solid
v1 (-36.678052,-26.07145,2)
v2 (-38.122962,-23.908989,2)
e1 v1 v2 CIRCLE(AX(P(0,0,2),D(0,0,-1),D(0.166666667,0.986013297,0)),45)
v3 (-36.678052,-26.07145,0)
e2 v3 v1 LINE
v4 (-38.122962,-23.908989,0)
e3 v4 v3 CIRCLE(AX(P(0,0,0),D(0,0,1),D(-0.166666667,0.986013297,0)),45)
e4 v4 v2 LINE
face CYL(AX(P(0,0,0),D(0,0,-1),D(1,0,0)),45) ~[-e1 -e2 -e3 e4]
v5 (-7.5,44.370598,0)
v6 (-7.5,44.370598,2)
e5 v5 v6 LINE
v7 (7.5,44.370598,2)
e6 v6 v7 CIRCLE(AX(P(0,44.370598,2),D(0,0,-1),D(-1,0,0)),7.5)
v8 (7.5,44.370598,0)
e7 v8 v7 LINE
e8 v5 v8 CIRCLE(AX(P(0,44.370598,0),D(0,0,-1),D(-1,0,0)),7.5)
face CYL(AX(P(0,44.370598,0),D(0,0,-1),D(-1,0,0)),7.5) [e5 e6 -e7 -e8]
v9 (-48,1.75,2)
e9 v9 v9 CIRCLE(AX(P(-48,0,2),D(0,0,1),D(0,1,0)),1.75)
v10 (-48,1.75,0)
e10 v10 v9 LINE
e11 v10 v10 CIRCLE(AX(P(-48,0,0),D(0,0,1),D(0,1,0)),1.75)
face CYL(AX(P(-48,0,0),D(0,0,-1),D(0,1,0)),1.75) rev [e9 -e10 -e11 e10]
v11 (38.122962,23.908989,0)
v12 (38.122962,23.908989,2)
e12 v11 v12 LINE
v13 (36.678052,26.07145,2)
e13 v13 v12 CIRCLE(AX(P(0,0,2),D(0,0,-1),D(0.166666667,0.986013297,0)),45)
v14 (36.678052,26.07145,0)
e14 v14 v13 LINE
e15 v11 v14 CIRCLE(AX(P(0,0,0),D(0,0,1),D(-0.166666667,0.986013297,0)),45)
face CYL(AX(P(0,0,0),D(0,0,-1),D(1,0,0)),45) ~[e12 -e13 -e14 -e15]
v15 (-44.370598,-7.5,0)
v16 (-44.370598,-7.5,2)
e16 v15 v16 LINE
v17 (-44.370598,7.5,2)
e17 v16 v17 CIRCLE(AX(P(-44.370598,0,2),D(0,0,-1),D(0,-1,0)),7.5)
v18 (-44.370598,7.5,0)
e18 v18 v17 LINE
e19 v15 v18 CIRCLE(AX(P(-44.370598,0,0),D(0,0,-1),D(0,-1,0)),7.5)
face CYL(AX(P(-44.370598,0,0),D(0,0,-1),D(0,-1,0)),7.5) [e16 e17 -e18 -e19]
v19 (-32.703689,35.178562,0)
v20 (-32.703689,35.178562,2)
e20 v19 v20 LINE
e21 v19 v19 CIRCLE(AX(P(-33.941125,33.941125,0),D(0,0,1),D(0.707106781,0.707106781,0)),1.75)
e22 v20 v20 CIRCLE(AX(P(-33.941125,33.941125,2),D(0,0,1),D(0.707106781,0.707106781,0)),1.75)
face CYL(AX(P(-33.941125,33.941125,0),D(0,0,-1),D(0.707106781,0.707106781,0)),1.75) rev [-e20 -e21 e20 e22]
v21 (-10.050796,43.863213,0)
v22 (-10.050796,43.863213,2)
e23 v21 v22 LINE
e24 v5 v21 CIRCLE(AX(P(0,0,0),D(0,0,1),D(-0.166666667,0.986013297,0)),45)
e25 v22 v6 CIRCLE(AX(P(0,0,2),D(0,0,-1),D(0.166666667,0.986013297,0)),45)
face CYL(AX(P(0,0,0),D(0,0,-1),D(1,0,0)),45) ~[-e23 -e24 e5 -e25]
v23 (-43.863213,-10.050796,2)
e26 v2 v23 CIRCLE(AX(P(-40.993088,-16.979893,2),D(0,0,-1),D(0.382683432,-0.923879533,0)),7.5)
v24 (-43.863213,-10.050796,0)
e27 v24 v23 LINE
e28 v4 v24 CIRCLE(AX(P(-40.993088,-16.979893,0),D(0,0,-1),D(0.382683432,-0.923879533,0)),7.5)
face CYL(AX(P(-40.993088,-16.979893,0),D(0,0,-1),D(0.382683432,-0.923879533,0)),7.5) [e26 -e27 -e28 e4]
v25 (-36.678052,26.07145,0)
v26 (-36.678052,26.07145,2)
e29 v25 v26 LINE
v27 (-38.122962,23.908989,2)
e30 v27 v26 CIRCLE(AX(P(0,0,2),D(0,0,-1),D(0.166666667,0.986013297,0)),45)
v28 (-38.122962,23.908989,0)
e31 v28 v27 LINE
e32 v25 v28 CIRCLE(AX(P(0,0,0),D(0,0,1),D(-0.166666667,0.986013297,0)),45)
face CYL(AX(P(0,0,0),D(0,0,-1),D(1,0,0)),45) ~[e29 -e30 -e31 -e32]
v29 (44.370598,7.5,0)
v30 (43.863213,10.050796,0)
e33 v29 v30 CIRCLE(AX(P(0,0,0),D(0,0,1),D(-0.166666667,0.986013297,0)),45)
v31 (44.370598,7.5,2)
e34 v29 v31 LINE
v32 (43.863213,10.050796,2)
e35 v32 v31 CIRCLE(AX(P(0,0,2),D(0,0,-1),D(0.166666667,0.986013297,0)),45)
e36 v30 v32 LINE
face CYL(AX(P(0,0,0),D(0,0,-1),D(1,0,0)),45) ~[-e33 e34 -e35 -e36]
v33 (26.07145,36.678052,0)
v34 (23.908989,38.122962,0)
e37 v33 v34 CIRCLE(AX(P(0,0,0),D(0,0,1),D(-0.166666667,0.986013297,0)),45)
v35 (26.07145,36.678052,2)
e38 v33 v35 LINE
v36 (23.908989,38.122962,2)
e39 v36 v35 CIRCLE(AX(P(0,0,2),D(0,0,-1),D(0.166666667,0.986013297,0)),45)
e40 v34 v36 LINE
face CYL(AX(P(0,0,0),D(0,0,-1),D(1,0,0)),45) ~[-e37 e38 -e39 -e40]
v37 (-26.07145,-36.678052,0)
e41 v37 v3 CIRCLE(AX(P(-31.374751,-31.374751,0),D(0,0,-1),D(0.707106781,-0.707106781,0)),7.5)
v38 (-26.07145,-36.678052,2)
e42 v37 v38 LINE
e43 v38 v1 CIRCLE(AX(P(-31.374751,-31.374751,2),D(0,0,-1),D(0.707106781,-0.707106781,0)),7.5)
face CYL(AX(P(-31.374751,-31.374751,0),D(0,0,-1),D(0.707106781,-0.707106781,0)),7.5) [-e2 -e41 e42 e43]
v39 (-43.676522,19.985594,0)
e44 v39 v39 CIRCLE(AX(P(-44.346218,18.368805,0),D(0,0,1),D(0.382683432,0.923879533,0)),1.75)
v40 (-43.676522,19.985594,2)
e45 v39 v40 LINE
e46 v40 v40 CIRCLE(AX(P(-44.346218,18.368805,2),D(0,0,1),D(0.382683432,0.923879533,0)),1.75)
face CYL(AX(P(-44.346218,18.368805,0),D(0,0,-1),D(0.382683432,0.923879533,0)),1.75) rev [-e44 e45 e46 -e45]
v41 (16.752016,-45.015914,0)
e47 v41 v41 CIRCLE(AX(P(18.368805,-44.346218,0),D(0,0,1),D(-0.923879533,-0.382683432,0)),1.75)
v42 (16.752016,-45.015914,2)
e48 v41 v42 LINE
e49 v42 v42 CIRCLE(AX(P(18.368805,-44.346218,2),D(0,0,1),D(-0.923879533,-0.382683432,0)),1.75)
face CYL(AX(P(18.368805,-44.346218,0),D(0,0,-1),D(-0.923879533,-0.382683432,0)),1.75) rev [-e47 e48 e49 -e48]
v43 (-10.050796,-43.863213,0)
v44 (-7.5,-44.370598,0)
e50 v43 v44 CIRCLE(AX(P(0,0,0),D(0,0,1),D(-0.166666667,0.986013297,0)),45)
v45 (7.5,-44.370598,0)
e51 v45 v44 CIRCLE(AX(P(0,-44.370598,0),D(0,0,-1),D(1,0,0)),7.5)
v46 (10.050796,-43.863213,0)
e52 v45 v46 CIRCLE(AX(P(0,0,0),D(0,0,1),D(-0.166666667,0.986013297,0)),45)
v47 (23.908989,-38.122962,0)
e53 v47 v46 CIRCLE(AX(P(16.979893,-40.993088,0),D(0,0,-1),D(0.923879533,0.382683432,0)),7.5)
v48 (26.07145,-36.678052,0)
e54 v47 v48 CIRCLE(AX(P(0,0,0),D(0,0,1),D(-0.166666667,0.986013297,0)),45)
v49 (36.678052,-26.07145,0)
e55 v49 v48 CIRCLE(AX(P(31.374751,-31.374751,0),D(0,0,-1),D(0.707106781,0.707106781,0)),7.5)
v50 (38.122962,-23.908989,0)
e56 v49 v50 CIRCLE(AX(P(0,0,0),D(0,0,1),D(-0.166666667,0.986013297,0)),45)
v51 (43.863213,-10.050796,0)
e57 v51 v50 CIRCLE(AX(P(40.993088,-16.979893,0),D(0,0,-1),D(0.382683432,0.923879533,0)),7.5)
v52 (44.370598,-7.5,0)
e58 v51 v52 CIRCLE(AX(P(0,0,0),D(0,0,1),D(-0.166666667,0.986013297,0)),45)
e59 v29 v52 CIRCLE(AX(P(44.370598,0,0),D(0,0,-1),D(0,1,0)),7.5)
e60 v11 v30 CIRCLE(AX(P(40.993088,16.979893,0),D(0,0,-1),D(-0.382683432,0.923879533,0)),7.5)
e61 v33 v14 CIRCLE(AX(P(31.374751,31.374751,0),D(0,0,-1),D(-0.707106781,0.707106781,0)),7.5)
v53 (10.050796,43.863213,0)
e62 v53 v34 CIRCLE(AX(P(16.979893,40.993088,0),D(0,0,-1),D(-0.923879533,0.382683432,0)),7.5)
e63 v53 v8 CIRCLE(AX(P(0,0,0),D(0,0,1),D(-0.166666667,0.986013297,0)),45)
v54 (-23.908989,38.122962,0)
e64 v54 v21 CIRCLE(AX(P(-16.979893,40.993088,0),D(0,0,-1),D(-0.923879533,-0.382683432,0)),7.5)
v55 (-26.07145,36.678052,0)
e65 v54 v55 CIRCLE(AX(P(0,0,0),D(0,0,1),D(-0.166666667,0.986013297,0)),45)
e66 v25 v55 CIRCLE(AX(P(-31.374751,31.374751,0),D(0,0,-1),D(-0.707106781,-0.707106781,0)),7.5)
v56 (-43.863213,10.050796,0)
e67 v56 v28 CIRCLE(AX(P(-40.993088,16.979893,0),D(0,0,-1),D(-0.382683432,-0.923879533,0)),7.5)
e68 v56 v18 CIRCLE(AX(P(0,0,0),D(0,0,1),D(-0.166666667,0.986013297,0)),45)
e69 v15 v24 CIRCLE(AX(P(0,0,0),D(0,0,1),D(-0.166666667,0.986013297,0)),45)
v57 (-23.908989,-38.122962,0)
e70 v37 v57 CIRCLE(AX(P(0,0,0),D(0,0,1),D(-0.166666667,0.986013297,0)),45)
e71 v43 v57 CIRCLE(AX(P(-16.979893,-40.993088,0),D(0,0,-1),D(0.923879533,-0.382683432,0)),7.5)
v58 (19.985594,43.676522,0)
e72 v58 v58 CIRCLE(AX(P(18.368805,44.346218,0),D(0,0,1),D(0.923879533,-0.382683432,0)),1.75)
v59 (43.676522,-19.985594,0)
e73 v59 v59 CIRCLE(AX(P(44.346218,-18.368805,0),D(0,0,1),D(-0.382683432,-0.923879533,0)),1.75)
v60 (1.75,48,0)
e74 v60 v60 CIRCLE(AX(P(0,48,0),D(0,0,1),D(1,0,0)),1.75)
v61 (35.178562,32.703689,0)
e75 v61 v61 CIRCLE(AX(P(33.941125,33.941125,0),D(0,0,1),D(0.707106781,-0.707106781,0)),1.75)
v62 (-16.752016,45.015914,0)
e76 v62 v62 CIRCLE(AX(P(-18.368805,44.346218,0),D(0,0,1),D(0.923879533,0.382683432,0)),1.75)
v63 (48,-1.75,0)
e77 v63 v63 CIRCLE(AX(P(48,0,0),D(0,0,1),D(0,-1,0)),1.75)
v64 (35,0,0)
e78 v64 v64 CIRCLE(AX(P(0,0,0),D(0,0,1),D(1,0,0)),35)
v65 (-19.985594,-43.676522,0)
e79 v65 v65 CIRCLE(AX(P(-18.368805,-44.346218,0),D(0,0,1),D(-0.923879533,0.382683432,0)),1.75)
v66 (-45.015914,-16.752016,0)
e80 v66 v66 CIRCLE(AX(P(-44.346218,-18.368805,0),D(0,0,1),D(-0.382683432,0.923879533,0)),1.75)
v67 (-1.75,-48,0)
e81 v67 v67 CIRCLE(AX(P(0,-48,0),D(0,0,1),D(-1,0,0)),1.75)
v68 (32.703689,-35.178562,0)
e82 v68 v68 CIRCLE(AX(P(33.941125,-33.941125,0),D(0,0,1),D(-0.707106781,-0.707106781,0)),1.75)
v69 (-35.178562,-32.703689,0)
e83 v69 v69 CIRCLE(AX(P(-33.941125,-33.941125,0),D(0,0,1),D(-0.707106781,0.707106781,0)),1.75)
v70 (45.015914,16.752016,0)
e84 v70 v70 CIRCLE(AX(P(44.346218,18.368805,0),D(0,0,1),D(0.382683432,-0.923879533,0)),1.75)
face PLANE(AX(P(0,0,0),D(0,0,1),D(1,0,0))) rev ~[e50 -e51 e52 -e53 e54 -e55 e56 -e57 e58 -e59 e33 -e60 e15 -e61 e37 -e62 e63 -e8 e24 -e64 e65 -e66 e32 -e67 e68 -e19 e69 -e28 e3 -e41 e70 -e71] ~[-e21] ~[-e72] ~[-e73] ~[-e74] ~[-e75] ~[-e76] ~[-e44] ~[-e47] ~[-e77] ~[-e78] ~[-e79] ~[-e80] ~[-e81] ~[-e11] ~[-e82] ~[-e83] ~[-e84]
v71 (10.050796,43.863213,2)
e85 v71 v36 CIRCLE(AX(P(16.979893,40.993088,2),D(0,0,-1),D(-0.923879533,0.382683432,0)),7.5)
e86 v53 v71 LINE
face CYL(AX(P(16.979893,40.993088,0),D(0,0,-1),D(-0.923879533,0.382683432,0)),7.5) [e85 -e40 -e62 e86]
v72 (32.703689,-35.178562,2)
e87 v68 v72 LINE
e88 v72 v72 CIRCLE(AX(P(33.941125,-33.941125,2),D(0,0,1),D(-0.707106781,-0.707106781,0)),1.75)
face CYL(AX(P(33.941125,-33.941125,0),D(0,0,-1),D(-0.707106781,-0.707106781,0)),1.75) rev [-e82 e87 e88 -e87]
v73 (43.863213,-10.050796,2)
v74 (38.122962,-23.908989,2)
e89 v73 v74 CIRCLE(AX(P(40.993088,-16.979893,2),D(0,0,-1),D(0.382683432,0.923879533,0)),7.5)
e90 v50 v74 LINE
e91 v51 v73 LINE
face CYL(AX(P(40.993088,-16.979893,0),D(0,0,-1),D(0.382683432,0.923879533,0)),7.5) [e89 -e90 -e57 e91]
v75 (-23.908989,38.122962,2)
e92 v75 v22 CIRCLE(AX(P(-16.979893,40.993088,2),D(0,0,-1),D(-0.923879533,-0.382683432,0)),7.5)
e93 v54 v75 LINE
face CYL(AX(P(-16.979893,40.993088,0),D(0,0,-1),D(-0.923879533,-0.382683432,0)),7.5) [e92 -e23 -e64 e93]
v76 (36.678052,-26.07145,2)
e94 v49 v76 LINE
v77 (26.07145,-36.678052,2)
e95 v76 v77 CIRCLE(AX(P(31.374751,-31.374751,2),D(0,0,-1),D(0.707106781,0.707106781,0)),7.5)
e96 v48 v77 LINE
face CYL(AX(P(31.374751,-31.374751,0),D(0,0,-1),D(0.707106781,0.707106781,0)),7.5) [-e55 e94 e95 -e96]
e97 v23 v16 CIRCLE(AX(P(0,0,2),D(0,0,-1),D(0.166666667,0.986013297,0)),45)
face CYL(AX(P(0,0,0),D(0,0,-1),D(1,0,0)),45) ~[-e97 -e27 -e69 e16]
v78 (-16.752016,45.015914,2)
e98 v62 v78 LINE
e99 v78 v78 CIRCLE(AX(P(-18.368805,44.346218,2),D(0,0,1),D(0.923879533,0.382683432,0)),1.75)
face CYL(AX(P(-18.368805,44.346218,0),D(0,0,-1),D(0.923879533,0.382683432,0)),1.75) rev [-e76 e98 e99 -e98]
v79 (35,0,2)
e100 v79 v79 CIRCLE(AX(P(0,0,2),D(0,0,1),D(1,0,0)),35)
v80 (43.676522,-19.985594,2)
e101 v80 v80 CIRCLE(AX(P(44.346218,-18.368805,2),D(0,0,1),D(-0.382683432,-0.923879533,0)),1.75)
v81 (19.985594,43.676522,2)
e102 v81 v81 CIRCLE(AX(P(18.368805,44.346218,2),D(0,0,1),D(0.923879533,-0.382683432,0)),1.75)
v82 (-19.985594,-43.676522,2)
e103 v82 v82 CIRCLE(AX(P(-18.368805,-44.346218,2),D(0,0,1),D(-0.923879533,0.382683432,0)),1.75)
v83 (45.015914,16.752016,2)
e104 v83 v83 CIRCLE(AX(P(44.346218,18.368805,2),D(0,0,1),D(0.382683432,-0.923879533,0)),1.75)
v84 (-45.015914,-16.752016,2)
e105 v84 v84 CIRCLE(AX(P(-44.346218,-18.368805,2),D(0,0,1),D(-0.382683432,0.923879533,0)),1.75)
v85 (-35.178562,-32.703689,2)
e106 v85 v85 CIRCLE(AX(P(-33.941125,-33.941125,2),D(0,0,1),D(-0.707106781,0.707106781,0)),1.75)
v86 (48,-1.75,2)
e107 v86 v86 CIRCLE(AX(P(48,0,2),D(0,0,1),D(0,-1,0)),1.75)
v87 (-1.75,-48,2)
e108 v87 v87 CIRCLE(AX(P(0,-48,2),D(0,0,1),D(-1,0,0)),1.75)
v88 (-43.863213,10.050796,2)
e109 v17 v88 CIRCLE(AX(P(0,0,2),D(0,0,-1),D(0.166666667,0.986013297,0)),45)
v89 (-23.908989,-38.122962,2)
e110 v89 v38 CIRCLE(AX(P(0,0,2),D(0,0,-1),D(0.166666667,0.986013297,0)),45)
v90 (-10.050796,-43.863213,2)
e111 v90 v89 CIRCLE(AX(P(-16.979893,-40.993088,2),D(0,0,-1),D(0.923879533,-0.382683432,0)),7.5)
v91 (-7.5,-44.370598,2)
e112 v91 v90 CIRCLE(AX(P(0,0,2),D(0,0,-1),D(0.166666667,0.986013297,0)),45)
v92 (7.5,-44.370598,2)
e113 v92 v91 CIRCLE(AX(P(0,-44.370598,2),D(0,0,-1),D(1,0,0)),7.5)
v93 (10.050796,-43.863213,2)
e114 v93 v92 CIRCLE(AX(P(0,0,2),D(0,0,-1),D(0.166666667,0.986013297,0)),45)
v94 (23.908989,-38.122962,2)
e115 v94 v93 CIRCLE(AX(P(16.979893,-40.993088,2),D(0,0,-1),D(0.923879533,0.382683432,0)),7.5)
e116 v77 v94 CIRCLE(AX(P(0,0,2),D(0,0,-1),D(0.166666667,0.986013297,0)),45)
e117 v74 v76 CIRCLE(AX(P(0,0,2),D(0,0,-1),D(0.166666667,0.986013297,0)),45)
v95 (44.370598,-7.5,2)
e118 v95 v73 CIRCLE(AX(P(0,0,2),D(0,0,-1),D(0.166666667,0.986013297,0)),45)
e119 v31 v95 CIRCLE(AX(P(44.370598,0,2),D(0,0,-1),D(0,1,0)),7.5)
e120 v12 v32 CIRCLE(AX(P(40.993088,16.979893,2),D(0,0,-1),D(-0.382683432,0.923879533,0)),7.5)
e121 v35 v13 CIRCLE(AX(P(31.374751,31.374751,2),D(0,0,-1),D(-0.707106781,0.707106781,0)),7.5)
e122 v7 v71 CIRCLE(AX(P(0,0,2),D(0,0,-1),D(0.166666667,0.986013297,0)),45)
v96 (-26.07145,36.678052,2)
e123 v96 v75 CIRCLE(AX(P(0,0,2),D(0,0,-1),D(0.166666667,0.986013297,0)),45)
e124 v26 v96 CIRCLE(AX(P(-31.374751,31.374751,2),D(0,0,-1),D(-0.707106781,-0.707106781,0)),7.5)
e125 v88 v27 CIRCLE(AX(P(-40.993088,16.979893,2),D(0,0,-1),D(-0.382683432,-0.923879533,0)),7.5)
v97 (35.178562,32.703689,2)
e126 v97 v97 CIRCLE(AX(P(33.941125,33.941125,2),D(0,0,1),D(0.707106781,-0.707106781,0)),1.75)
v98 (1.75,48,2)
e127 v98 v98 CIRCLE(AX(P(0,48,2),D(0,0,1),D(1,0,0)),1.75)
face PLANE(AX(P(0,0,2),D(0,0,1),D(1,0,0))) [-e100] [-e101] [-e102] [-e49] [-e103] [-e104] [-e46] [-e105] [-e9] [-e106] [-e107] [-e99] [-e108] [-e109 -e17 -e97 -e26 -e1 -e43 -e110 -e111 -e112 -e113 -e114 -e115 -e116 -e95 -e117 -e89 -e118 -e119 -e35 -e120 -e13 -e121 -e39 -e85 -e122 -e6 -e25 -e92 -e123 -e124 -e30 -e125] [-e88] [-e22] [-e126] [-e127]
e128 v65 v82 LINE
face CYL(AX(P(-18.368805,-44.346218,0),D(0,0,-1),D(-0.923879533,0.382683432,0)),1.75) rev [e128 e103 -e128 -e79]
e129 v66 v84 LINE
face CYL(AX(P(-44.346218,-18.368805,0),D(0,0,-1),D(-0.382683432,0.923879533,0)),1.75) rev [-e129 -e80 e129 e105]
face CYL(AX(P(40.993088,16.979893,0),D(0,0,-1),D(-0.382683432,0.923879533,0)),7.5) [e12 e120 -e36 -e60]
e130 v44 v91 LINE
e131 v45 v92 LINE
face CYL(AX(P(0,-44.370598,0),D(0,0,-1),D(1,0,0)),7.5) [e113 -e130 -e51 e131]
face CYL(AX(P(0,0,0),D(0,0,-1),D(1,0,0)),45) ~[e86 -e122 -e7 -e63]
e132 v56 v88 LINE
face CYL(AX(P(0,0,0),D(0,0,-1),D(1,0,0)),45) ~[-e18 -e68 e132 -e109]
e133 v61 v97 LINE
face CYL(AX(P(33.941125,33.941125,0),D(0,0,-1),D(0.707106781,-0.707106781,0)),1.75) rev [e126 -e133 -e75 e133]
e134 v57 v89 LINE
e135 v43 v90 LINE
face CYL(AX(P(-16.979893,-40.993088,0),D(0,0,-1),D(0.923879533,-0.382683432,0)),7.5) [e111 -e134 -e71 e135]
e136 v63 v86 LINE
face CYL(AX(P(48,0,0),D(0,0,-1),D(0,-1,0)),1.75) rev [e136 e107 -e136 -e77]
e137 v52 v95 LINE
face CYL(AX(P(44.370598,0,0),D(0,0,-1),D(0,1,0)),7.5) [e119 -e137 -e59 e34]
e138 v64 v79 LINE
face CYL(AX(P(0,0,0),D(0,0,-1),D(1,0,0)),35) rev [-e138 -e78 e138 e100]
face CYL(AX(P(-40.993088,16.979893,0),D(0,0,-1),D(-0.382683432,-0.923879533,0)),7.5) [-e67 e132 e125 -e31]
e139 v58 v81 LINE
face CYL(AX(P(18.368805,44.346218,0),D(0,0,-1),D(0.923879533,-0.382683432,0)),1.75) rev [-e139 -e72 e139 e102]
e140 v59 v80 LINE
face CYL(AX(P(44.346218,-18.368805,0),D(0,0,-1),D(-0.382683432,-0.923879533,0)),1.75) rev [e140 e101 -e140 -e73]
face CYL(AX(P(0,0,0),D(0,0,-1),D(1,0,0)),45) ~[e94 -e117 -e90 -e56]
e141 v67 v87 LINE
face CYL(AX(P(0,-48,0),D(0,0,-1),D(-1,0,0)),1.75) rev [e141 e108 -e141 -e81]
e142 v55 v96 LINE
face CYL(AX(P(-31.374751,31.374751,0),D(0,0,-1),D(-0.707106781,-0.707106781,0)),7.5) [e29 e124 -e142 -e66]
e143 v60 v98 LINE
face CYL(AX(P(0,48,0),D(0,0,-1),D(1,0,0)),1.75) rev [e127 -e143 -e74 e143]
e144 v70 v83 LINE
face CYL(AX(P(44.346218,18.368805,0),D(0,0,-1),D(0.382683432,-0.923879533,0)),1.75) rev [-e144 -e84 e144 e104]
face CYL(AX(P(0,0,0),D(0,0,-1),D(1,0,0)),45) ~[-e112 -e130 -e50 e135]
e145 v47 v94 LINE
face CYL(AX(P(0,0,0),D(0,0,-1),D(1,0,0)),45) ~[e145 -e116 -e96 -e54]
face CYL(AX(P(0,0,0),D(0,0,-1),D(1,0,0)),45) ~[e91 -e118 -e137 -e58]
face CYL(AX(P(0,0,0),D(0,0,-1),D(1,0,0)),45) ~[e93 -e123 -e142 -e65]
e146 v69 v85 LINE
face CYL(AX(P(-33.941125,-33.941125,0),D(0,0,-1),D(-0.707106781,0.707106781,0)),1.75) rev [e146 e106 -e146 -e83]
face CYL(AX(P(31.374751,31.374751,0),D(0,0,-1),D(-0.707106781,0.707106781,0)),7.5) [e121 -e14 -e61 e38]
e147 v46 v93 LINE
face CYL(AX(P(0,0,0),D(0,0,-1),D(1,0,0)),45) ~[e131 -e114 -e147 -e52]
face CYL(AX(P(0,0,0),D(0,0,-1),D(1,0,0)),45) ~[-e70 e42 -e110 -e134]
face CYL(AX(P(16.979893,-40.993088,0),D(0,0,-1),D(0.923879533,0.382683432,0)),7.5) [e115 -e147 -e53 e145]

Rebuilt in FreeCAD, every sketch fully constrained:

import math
import FreeCAD as App
import Part
import Sketcher

V = App.Vector
Q = App.Units.Quantity

doc = App.newDocument("Part")
body = doc.addObject("PartDesign::Body", "Body")

sketch1 = doc.addObject("Sketcher::SketchObject", "Sketch")
body.addObject(sketch1)
sketch1.AttachmentSupport = (doc.XY_Plane, [""])
sketch1.MapMode = "FlatFace"
sketch1.addGeometry([
    Part.Circle(V(0, 0, 0), V(0, 0, 1), 45),
    Part.Circle(V(0, 0, 0), V(0, 0, 1), 35),
], False)
sketch1.addConstraint([
    Sketcher.Constraint("Coincident", 0, 3, -1, 1),
    Sketcher.Constraint("Coincident", 1, 3, -1, 1),
    Sketcher.Constraint("Diameter", 0, Q("90 mm")),
    Sketcher.Constraint("Diameter", 1, Q("70 mm")),
])
pad1 = doc.addObject("PartDesign::Pad", "Pad")
body.addObject(pad1)
pad1.Profile = sketch1
pad1.Length = 2

sketch2 = doc.addObject("Sketcher::SketchObject", "Sketch001")
body.addObject(sketch2)
sketch2.AttachmentSupport = (doc.XY_Plane, [""])
sketch2.MapMode = "FlatFace"
sketch2.addGeometry([
    Part.ArcOfCircle(Part.Circle(V(0, 0, 0), V(0, 0, 1), 45), math.radians(80.41), math.radians(99.59)),
    Part.ArcOfCircle(Part.Circle(V(0, 44.4, 0), V(0, 0, 1), 7.5), math.radians(0), math.radians(180)),
    Part.Circle(V(0, 48, 0), V(0, 0, 1), 1.8),
], False)
sketch2.addConstraint([
    Sketcher.Constraint("Coincident", 0, 1, 1, 1),
    Sketcher.Constraint("Coincident", 1, 2, 0, 2),
    Sketcher.Constraint("Coincident", 0, 3, -1, 1),
    Sketcher.Constraint("PointOnObject", 1, 3, -2),
    Sketcher.Constraint("PointOnObject", 2, 3, -2),
    Sketcher.Constraint("Horizontal", 1, 3, 0, 1),
    Sketcher.Constraint("Radius", 0, Q("45 mm")),
    Sketcher.Constraint("Diameter", 2, Q("3.5 mm")),
    Sketcher.Constraint("Radius", 1, Q("7.5 mm")),
    Sketcher.Constraint("DistanceY", -1, 1, 2, 3, Q("48 mm")),
])
pad2 = doc.addObject("PartDesign::Pad", "Pad001")
body.addObject(pad2)
pad2.Profile = sketch2
pad2.Length = 2
doc.recompute()

polarpattern = doc.addObject("PartDesign::PolarPattern", "PolarPattern")
body.addObject(polarpattern)
polarpattern.Originals = [pad2]
polarpattern.Axis = (doc.Z_Axis, [""])
polarpattern.Angle = 360
polarpattern.Occurrences = 16
body.Tip = polarpattern

doc.recompute()
